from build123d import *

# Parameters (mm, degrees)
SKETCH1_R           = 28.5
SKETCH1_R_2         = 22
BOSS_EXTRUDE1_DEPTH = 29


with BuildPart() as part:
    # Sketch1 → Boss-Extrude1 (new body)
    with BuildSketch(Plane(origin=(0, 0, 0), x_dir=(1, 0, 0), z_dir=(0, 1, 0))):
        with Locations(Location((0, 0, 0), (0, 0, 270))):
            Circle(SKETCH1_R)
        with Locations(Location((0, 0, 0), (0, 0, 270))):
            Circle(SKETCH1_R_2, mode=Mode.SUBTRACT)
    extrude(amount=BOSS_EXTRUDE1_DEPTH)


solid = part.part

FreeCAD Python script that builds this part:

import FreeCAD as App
import Part
import Sketcher
from FreeCAD import Vector
Q = App.Units.Quantity

doc = App.newDocument("Part")
body = doc.addObject("PartDesign::Body", "Body")

# Sketch on XZ plane
sketch1 = body.newObject("Sketcher::SketchObject", "Sketch")
sketch1.AttachmentSupport = (doc.getObject("XZ_Plane"), [""])
sketch1.MapMode = "FlatFace"
sketch1.addGeometry(Part.Circle(Vector(0, 0, 0), Vector(0, 0, 1), 28), False)
sketch1.addGeometry(Part.Circle(Vector(0, 0, 0), Vector(0, 0, 1), 22), False)
sketch1.addConstraint(Sketcher.Constraint("Coincident", 0, 3, -1, 1))
sketch1.addConstraint(Sketcher.Constraint("Coincident", 1, 3, -1, 1))
sketch1.addConstraint(Sketcher.Constraint("Diameter", 0, Q("57 mm")))
sketch1.addConstraint(Sketcher.Constraint("Diameter", 1, Q("44 mm")))
pad1 = body.newObject("PartDesign::Pad", "Pad")
pad1.Profile = sketch1
pad1.Length = 29
pad1.Reversed = True

doc.recompute()
